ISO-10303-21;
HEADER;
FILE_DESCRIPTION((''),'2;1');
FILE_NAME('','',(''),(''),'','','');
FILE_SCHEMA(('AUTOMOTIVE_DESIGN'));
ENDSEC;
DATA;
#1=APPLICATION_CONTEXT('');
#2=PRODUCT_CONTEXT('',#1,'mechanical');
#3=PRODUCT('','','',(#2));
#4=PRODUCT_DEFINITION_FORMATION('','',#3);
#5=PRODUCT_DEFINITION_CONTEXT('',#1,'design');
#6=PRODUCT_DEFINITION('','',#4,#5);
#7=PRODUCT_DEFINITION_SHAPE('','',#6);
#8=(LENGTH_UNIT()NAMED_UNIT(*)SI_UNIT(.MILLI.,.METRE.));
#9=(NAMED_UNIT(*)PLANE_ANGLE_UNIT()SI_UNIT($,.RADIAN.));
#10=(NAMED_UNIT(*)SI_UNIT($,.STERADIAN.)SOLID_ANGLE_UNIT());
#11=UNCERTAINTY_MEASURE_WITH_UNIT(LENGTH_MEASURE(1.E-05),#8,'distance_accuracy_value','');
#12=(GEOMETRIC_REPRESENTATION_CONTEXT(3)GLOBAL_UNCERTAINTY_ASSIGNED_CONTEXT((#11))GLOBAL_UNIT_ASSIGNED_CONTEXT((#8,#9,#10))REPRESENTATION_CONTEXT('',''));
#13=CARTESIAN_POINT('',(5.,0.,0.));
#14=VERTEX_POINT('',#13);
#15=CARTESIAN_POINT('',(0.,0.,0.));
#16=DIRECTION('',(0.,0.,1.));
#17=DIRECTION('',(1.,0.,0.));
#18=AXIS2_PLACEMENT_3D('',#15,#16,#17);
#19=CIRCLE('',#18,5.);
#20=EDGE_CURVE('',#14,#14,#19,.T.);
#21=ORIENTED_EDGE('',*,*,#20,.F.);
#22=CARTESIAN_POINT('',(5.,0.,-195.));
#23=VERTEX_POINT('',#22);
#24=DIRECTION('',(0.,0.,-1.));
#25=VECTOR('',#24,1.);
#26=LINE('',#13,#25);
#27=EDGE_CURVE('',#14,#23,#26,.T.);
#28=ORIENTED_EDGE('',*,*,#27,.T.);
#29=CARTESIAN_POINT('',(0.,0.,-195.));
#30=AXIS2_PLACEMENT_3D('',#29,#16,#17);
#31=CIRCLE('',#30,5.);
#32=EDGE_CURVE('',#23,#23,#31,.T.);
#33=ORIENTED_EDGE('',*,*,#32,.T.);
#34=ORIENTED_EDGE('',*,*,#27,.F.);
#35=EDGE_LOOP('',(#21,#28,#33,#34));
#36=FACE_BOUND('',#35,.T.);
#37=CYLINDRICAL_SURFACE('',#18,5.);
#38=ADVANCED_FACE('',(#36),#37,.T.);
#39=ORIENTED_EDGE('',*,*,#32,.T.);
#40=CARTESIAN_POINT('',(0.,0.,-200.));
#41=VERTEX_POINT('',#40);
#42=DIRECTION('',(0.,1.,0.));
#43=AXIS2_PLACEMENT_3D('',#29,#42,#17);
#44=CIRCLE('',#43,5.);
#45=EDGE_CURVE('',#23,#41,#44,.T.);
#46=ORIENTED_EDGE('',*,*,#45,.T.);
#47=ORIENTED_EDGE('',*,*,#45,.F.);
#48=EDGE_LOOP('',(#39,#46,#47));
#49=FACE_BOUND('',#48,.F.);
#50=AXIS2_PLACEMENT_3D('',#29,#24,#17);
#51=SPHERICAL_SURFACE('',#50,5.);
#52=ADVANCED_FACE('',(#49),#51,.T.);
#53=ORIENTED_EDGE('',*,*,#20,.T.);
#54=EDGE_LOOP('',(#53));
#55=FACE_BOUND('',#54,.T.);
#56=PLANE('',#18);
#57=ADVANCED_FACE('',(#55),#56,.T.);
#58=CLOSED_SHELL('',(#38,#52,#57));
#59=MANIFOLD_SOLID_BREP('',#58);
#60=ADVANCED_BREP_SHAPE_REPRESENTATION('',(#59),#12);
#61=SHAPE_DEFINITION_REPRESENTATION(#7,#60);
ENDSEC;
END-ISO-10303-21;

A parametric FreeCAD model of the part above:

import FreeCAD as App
import Part
import Sketcher
from FreeCAD import Vector


def edges_at(feature, points):
    """Names of the edges that pass closest to the given points."""
    edges = feature.Shape.Edges
    near = lambda p: min(range(len(edges)), key=lambda i: edges[i].distToShape(Part.Vertex(*p))[0])
    return sorted({f"Edge{near(p) + 1}" for p in points})

doc = App.newDocument("Part")
body = doc.addObject("PartDesign::Body", "Body")

sketch1 = doc.addObject("Sketcher::SketchObject", "Sketch")
body.addObject(sketch1)
sketch1.AttachmentSupport = (doc.XY_Plane, [""])
sketch1.MapMode = "FlatFace"
sketch1.addGeometry(Part.Circle(Vector(0, 0, 0), Vector(0, 0, 1), 5), False)
sketch1.addConstraint([
    Sketcher.Constraint("Coincident", 0, 3, -1, 1),
    Sketcher.Constraint("Diameter", 0, 10.0),
])
pad1 = doc.addObject("PartDesign::Pad", "Pad")
body.addObject(pad1)
pad1.Profile = sketch1
pad1.Length = 200
pad1.Reversed = True
doc.recompute()

fillet = doc.addObject("PartDesign::Fillet", "Fillet")
body.addObject(fillet)
fillet.Base = (pad1, edges_at(pad1, [(-5, 0, -200)]))
fillet.Radius = 5

doc.recompute()
